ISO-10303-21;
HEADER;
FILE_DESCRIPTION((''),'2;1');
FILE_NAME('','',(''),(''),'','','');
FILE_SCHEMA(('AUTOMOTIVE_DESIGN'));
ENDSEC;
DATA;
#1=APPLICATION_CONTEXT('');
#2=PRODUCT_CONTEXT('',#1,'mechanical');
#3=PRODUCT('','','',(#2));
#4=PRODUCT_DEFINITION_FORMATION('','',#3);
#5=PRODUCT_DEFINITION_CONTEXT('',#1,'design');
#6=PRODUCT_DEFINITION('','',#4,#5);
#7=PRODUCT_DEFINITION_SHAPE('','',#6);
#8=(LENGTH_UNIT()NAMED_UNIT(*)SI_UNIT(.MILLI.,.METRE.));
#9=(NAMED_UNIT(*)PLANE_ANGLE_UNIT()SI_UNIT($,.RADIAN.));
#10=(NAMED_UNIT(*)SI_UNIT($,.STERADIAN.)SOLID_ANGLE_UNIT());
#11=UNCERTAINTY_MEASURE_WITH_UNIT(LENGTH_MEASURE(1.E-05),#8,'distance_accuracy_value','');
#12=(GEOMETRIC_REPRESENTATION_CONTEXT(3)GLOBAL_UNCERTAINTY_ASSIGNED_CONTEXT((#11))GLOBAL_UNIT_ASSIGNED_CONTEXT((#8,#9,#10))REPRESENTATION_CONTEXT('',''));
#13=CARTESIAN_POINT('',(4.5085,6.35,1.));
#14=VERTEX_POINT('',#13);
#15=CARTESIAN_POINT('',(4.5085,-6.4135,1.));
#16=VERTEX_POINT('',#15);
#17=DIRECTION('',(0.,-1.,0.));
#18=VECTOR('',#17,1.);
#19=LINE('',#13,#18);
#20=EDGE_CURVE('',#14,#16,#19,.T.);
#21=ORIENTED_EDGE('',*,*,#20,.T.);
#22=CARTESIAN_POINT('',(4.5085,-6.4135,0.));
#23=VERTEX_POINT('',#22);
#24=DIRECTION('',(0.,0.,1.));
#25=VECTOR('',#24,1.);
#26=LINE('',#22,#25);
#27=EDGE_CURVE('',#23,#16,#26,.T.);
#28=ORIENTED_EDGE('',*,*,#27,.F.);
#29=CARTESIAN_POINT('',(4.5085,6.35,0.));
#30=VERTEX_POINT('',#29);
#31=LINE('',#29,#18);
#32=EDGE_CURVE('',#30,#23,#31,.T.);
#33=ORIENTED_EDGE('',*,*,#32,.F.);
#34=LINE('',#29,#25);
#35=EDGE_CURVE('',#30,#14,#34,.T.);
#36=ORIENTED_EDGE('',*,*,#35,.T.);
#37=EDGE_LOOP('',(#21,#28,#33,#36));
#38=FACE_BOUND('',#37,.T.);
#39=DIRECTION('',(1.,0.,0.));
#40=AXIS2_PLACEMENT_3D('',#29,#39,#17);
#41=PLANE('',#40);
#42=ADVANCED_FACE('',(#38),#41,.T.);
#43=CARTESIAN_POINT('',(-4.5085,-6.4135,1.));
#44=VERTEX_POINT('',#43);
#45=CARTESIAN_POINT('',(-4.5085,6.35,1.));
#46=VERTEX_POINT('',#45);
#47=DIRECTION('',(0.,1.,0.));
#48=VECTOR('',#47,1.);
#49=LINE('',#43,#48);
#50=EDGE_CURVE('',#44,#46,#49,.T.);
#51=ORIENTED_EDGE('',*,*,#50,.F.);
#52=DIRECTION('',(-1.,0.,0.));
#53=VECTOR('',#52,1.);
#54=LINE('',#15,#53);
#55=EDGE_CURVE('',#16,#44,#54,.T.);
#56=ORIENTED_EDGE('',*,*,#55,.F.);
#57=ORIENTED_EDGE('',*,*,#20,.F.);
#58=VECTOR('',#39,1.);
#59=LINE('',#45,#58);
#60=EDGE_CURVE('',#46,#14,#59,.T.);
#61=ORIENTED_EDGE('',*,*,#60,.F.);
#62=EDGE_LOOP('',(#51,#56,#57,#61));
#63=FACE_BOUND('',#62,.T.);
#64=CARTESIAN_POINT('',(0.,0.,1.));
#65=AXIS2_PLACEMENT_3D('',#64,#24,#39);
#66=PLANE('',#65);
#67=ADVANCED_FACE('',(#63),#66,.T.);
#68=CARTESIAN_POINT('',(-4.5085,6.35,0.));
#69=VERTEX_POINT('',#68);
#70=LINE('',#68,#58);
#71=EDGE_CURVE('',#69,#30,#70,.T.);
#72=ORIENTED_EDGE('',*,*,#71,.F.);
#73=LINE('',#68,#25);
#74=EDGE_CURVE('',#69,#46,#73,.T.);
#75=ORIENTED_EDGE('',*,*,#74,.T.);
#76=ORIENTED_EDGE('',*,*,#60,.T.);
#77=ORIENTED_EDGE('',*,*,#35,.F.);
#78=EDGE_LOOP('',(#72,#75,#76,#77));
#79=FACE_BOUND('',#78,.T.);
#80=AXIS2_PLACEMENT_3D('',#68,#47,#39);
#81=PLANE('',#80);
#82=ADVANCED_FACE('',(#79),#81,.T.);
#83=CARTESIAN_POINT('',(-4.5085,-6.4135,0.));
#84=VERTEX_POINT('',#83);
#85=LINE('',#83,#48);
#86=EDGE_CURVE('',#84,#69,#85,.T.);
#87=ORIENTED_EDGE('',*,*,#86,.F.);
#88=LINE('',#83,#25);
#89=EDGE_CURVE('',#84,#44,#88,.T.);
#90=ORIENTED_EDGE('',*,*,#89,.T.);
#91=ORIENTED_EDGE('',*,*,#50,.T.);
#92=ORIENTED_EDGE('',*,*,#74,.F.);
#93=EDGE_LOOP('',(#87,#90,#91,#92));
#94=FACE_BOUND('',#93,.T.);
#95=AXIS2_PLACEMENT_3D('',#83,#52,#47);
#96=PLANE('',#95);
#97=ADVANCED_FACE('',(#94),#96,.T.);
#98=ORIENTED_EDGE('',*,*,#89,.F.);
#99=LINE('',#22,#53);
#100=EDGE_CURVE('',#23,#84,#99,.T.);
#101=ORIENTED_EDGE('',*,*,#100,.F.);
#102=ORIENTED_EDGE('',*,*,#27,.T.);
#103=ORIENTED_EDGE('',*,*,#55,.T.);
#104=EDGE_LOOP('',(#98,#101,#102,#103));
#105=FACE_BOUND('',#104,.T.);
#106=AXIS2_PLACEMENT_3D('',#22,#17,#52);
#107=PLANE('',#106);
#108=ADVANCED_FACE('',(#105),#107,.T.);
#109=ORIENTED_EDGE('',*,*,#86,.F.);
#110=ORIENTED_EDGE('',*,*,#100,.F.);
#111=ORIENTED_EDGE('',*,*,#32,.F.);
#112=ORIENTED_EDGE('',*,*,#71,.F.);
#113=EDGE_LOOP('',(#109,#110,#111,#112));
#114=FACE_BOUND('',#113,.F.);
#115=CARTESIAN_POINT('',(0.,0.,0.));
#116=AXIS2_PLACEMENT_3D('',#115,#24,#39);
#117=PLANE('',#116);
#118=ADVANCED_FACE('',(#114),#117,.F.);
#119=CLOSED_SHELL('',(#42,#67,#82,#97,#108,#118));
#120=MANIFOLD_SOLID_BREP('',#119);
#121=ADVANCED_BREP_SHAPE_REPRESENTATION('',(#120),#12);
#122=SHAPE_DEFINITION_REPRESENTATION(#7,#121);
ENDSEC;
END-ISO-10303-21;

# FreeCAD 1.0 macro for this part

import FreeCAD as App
import Part
import Sketcher
from FreeCAD import Vector
Q = App.Units.Quantity


def add_polygon(sketch, points):
    """Adds a closed chain of lines whose ends are joined by coincident constraints."""
    first, n = sketch.GeometryCount, len(points)
    for a, b in zip(points, points[1:] + points[:1]):
        sketch.addGeometry(Part.LineSegment(App.Vector(*a, 0), App.Vector(*b, 0)), False)
    for i in range(n):
        sketch.addConstraint(Sketcher.Constraint("Coincident", first + i, 2, first + (i + 1) % n, 1))

doc = App.newDocument("Part")
params = doc.addObject("Spreadsheet::Sheet", "Params")
for row, (alias, value) in enumerate([
    ("pad1_length", "1 mm"),
], start=1):
    params.set(f"A{row}", alias)
    params.set(f"B{row}", "=" + value)
    params.setAlias(f"B{row}", alias)

body = doc.addObject("PartDesign::Body", "Body")

sketch1 = body.newObject("Sketcher::SketchObject", "Sketch")
sketch1.AttachmentSupport = (doc.getObject("XY_Plane"), [""])
sketch1.MapMode = "FlatFace"
add_polygon(sketch1, [(4.5085, 6.35), (-4.5085, 6.35), (-4.5085, -6.4135), (4.5085, -6.4135)])
sketch1.addConstraint([
    Sketcher.Constraint("Horizontal", 0),
    Sketcher.Constraint("Vertical", 1),
    Sketcher.Constraint("Horizontal", 2),
    Sketcher.Constraint("Vertical", 3),
    Sketcher.Constraint("DistanceX", 0, 2, 0, 1, Q("9.017 mm")),
    Sketcher.Constraint("DistanceY", -1, 1, 0, 2, Q("6.35 mm")),
    Sketcher.Constraint("DistanceY", 1, 2, 1, 1, Q("12.7635 mm")),
    Sketcher.Constraint("DistanceX", 0, 2, -1, 1, Q("4.5085 mm")),
])
pad1 = body.newObject("PartDesign::Pad", "Pad")
pad1.Profile = sketch1
pad1.setExpression("Length", "Params.pad1_length")

doc.recompute()
